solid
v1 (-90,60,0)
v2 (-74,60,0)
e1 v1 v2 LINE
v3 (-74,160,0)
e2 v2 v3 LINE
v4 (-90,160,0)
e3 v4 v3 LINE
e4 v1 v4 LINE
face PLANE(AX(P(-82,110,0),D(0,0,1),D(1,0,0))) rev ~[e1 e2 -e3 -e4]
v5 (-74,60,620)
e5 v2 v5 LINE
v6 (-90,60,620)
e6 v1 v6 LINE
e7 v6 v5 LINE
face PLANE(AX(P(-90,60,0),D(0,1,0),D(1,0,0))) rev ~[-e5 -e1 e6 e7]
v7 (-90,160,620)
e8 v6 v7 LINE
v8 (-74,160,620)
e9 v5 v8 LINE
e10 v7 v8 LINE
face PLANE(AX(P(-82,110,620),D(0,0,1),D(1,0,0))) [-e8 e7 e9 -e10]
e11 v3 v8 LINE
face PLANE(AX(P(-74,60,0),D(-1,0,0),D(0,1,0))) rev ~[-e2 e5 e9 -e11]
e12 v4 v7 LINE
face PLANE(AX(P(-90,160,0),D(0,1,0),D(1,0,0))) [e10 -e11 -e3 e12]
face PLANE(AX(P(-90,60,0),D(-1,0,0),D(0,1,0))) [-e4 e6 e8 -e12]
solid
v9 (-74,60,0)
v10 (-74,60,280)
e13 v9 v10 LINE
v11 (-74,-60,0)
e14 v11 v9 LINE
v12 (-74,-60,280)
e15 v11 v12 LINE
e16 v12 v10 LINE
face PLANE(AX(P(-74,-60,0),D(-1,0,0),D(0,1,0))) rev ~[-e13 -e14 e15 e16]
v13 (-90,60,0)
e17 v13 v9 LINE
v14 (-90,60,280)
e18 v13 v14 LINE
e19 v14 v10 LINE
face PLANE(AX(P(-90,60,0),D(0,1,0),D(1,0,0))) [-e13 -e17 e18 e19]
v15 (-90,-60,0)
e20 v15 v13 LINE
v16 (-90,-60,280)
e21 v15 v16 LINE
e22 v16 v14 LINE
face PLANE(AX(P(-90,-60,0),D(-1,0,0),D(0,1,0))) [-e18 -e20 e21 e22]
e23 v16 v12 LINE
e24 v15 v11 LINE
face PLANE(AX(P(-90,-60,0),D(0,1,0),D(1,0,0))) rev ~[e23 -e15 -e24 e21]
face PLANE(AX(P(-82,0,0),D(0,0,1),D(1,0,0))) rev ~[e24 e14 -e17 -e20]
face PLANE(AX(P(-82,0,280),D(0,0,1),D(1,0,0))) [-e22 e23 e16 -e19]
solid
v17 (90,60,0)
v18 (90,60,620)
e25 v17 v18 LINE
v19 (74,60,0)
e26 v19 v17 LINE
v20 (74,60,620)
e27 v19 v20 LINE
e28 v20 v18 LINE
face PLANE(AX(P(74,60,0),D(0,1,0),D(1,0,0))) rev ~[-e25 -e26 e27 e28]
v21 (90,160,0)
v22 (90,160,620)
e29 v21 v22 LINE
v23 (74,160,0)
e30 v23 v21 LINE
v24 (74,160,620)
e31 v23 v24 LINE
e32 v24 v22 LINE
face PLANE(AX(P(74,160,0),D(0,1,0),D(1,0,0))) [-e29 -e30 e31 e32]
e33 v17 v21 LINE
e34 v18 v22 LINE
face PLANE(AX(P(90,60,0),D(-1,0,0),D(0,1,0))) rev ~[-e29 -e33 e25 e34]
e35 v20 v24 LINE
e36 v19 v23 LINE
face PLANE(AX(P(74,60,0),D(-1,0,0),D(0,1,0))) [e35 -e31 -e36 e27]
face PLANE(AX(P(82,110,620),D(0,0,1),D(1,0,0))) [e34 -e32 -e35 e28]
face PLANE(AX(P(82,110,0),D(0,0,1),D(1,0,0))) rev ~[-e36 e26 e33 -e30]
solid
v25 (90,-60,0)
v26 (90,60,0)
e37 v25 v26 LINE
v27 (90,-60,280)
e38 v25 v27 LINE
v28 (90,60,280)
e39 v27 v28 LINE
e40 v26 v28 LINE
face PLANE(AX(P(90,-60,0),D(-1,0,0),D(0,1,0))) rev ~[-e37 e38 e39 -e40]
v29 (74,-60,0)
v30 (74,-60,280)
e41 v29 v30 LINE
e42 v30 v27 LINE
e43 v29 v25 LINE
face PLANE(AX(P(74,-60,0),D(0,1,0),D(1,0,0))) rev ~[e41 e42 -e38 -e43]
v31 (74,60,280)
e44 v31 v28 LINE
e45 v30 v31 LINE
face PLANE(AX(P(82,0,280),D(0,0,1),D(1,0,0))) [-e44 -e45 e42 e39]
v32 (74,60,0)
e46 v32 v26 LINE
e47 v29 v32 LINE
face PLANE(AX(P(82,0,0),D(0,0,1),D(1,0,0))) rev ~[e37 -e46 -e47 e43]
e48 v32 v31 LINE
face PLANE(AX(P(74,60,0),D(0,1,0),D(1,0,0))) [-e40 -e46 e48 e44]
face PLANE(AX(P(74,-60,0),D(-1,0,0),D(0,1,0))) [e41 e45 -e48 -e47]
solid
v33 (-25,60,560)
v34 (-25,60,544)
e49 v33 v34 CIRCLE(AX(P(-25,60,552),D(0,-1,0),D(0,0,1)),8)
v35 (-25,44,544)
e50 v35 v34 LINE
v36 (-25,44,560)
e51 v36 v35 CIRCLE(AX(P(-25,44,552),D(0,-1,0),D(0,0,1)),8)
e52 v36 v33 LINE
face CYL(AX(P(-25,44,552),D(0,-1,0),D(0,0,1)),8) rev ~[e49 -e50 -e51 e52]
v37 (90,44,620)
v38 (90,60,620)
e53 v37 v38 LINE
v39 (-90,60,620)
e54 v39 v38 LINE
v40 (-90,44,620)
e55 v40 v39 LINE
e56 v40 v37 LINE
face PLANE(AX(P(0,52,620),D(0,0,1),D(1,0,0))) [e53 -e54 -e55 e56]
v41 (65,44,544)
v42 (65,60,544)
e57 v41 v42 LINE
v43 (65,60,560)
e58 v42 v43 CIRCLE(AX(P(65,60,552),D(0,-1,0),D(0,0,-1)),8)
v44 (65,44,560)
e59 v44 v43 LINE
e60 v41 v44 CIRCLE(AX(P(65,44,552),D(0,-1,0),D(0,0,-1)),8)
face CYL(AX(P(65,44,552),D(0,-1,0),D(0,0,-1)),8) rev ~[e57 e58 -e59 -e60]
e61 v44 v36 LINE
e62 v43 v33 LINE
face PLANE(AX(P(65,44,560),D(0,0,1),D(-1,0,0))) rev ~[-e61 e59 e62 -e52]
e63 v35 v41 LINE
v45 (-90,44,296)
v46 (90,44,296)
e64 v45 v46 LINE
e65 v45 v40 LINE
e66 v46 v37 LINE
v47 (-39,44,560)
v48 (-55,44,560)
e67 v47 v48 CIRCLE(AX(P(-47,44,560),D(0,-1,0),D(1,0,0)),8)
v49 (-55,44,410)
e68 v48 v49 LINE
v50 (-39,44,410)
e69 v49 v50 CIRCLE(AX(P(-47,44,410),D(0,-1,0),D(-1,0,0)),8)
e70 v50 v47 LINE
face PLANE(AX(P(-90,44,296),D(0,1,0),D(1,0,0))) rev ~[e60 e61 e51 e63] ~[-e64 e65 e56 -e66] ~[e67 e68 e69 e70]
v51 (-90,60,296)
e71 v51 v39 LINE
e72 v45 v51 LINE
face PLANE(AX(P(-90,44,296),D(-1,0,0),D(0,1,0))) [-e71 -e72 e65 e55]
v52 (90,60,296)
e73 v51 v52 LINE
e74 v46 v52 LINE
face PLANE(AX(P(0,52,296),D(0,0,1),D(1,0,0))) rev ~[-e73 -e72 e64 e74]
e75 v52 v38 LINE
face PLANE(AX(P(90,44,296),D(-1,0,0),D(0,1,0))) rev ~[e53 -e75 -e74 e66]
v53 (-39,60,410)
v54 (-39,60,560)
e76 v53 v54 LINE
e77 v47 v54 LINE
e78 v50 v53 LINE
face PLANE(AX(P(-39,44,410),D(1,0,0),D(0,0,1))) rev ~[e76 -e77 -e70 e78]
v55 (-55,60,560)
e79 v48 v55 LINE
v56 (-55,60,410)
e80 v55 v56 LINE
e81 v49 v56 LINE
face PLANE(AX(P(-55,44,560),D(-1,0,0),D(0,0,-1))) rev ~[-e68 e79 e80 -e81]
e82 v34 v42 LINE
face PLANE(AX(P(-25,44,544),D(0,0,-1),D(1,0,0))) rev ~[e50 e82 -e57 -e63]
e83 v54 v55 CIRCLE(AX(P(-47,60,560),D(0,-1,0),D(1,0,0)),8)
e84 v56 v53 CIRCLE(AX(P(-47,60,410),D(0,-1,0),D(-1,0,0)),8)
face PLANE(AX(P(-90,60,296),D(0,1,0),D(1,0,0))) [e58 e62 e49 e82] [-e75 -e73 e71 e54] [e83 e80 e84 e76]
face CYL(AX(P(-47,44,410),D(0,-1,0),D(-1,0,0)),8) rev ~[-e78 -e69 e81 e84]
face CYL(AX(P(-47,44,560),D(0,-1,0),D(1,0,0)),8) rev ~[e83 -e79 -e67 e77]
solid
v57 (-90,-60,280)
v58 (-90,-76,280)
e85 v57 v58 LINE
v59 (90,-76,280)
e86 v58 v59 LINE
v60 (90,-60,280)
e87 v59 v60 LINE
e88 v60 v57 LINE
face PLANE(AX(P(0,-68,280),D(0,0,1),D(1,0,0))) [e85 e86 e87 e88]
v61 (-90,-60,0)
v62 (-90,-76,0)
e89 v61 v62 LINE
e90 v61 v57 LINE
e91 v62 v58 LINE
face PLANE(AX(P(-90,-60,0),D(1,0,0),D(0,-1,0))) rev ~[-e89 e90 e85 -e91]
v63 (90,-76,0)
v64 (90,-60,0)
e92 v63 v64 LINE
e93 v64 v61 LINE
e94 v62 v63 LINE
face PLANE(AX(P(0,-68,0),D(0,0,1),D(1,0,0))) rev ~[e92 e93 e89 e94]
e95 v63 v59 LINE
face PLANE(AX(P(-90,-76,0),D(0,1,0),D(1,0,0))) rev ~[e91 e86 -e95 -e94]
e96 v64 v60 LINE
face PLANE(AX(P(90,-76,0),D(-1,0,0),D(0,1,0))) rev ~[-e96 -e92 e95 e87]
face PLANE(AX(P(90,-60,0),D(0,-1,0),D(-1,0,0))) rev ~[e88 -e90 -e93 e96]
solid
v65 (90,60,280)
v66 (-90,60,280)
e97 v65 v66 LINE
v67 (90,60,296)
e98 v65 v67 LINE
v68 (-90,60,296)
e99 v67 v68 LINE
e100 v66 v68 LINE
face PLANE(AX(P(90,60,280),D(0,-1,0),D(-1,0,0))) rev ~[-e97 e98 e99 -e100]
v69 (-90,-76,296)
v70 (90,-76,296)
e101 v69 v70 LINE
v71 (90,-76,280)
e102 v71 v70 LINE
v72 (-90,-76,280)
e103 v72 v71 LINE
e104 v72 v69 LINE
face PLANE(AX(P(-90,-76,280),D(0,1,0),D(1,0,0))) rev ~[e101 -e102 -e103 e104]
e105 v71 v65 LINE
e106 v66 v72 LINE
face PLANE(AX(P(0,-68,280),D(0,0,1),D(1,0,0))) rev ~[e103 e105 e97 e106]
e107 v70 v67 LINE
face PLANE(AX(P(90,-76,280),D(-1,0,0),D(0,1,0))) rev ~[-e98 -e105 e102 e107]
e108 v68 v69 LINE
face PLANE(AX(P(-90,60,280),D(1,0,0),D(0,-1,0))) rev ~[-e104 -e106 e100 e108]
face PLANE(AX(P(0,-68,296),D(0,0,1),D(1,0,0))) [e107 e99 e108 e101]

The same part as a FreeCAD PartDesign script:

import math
import FreeCAD as App
import Part
import Sketcher
Q = App.Units.Quantity

doc = App.newDocument("Part")
params = doc.addObject("Spreadsheet::Sheet", "Params")
for row, (alias, value) in enumerate([
    ("sketch1_width", "16 mm"),
    ("sketch1_height", "120 mm"),
    ("pad1_length", "280 mm"),
    ("sketch2_width", "16 mm"),
    ("sketch2_height", "100 mm"),
    ("pad2_length", "620 mm"),
    ("sketch3_width", "180 mm"),
    ("sketch3_height", "16 mm"),
    ("pad3_length", "280 mm"),
    ("sketch4_width", "180 mm"),
    ("sketch4_height", "136 mm"),
    ("pad4_length", "16 mm"),
    ("sketch5_width", "180 mm"),
    ("sketch5_height", "16 mm"),
    ("pad5_length", "324 mm"),
    ("sketch6_radius", "8 mm"),
    ("sketch6_width", "90 mm"),
    ("sketch6_height", "150 mm"),
], start=1):
    params.set(f"A{row}", alias)
    params.set(f"B{row}", "=" + value)
    params.setAlias(f"B{row}", alias)

body = doc.addObject("PartDesign::Body", "Body")
body.AllowCompound = True

# Sketch on XY plane
sketch1 = body.newObject("Sketcher::SketchObject", "Sketch")
sketch1.AttachmentSupport = (doc.getObject("XY_Plane"), [""])
sketch1.MapMode = "FlatFace"
sketch1.addGeometry([
    Part.LineSegment(App.Vector(-90, 60, 0), App.Vector(-90, -60, 0)),  # 0
    Part.LineSegment(App.Vector(-90, -60, 0), App.Vector(-74, -60, 0)),  # 1
    Part.LineSegment(App.Vector(-74, -60, 0), App.Vector(-74, 60, 0)),  # 2
    Part.LineSegment(App.Vector(-74, 60, 0), App.Vector(-90, 60, 0)),  # 3
    Part.LineSegment(App.Vector(74, 60, 0), App.Vector(74, -60, 0)),  # 4
    Part.LineSegment(App.Vector(74, -60, 0), App.Vector(90, -60, 0)),  # 5
    Part.LineSegment(App.Vector(90, -60, 0), App.Vector(90, 60, 0)),  # 6
    Part.LineSegment(App.Vector(90, 60, 0), App.Vector(74, 60, 0)),  # 7
], False)
sketch1.addConstraint([
    Sketcher.Constraint("Coincident", 0, 2, 1, 1),
    Sketcher.Constraint("Coincident", 1, 2, 2, 1),
    Sketcher.Constraint("Coincident", 2, 2, 3, 1),
    Sketcher.Constraint("Coincident", 3, 2, 0, 1),
    Sketcher.Constraint("Coincident", 4, 2, 5, 1),
    Sketcher.Constraint("Coincident", 5, 2, 6, 1),
    Sketcher.Constraint("Coincident", 6, 2, 7, 1),
    Sketcher.Constraint("Coincident", 7, 2, 4, 1),
    Sketcher.Constraint("Vertical", 0),
    Sketcher.Constraint("Horizontal", 1),
    Sketcher.Constraint("Vertical", 2),
    Sketcher.Constraint("Horizontal", 3),
    Sketcher.Constraint("Vertical", 4),
    Sketcher.Constraint("Horizontal", 5),
    Sketcher.Constraint("Vertical", 6),
    Sketcher.Constraint("Horizontal", 7),
    Sketcher.Constraint("Symmetric", 2, 2, 4, 2, -1, 1),
    Sketcher.Constraint("Symmetric", 0, 2, 6, 2, -1, 1),
    Sketcher.Constraint("Horizontal", 1, 2, 4, 2),
    Sketcher.Constraint("DistanceX", 1, 1, 1, 2, Q("16 mm")),
    Sketcher.Constraint("DistanceY", 0, 2, 0, 1, Q("120 mm")),
    Sketcher.Constraint("DistanceX", 0, 2, -1, 1, Q("90 mm")),
])
sketch1.setExpression("Constraints[19]", "Params.sketch1_width")
sketch1.setExpression("Constraints[20]", "Params.sketch1_height")
pad1 = body.newObject("PartDesign::Pad", "Pad")
pad1.Profile = sketch1
pad1.setExpression("Length", "Params.pad1_length")
body2 = doc.addObject("PartDesign::Body", "Body001")
body2.AllowCompound = True

# Sketch on XY plane
sketch2 = body2.newObject("Sketcher::SketchObject", "Sketch001")
sketch2.AttachmentSupport = (doc.getObject("XY_Plane001"), [""])
sketch2.MapMode = "FlatFace"
sketch2.addGeometry([
    Part.LineSegment(App.Vector(-90, 160, 0), App.Vector(-90, 60, 0)),  # 0
    Part.LineSegment(App.Vector(-90, 60, 0), App.Vector(-74, 60, 0)),  # 1
    Part.LineSegment(App.Vector(-74, 60, 0), App.Vector(-74, 160, 0)),  # 2
    Part.LineSegment(App.Vector(-74, 160, 0), App.Vector(-90, 160, 0)),  # 3
    Part.LineSegment(App.Vector(74, 160, 0), App.Vector(74, 60, 0)),  # 4
    Part.LineSegment(App.Vector(74, 60, 0), App.Vector(90, 60, 0)),  # 5
    Part.LineSegment(App.Vector(90, 60, 0), App.Vector(90, 160, 0)),  # 6
    Part.LineSegment(App.Vector(90, 160, 0), App.Vector(74, 160, 0)),  # 7
], False)
sketch2.addConstraint([
    Sketcher.Constraint("Coincident", 0, 2, 1, 1),
    Sketcher.Constraint("Coincident", 1, 2, 2, 1),
    Sketcher.Constraint("Coincident", 2, 2, 3, 1),
    Sketcher.Constraint("Coincident", 3, 2, 0, 1),
    Sketcher.Constraint("Coincident", 4, 2, 5, 1),
    Sketcher.Constraint("Coincident", 5, 2, 6, 1),
    Sketcher.Constraint("Coincident", 6, 2, 7, 1),
    Sketcher.Constraint("Coincident", 7, 2, 4, 1),
    Sketcher.Constraint("Vertical", 0),
    Sketcher.Constraint("Horizontal", 1),
    Sketcher.Constraint("Vertical", 2),
    Sketcher.Constraint("Horizontal", 3),
    Sketcher.Constraint("Vertical", 4),
    Sketcher.Constraint("Horizontal", 5),
    Sketcher.Constraint("Vertical", 6),
    Sketcher.Constraint("Horizontal", 7),
    Sketcher.Constraint("Symmetric", 1, 2, 4, 2, -2),
    Sketcher.Constraint("Symmetric", 3, 2, 6, 2, -2),
    Sketcher.Constraint("DistanceX", 1, 1, 1, 2, Q("16 mm")),
    Sketcher.Constraint("DistanceY", 0, 2, 0, 1, Q("100 mm")),
    Sketcher.Constraint("DistanceX", 0, 2, -1, 1, Q("90 mm")),
    Sketcher.Constraint("DistanceY", -1, 1, 0, 2, Q("60 mm")),
])
sketch2.setExpression("Constraints[18]", "Params.sketch2_width")
sketch2.setExpression("Constraints[19]", "Params.sketch2_height")
pad2 = body2.newObject("PartDesign::Pad", "Pad001")
pad2.Profile = sketch2
pad2.setExpression("Length", "Params.pad2_length")
body3 = doc.addObject("PartDesign::Body", "Body002")

# Sketch on XY plane
sketch3 = body3.newObject("Sketcher::SketchObject", "Sketch002")
sketch3.AttachmentSupport = (doc.getObject("XY_Plane002"), [""])
sketch3.MapMode = "FlatFace"
sketch3.addGeometry([
    Part.LineSegment(App.Vector(-90, -60, 0), App.Vector(-90, -76, 0)),
    Part.LineSegment(App.Vector(-90, -76, 0), App.Vector(90, -76, 0)),
    Part.LineSegment(App.Vector(90, -76, 0), App.Vector(90, -60, 0)),
    Part.LineSegment(App.Vector(90, -60, 0), App.Vector(-90, -60, 0)),
], False)
sketch3.addConstraint([
    Sketcher.Constraint("Coincident", 0, 2, 1, 1),
    Sketcher.Constraint("Coincident", 1, 2, 2, 1),
    Sketcher.Constraint("Coincident", 2, 2, 3, 1),
    Sketcher.Constraint("Coincident", 3, 2, 0, 1),
    Sketcher.Constraint("Vertical", 0),
    Sketcher.Constraint("Horizontal", 1),
    Sketcher.Constraint("Vertical", 2),
    Sketcher.Constraint("Horizontal", 3),
    Sketcher.Constraint("DistanceX", 1, 1, 1, 2, Q("180 mm")),
    Sketcher.Constraint("DistanceY", 0, 2, 0, 1, Q("16 mm")),
    Sketcher.Constraint("DistanceX", 0, 2, -1, 1, Q("90 mm")),
    Sketcher.Constraint("DistanceY", 0, 2, -1, 1, Q("76 mm")),
])
sketch3.setExpression("Constraints[8]", "Params.sketch3_width")
sketch3.setExpression("Constraints[9]", "Params.sketch3_height")
pad3 = body3.newObject("PartDesign::Pad", "Pad002")
pad3.Profile = sketch3
pad3.setExpression("Length", "Params.pad3_length")
body4 = doc.addObject("PartDesign::Body", "Body003")

# Sketch on XY plane
sketch4 = body4.newObject("Sketcher::SketchObject", "Sketch003")
sketch4.AttachmentSupport = (doc.getObject("XY_Plane003"), [""])
sketch4.MapMode = "FlatFace"
sketch4.AttachmentOffset = App.Placement(App.Vector(0, 0, 280), App.Rotation())
sketch4.addGeometry([
    Part.LineSegment(App.Vector(-90, -76, 0), App.Vector(90, -76, 0)),
    Part.LineSegment(App.Vector(90, -76, 0), App.Vector(90, 60, 0)),
    Part.LineSegment(App.Vector(90, 60, 0), App.Vector(-90, 60, 0)),
    Part.LineSegment(App.Vector(-90, 60, 0), App.Vector(-90, -76, 0)),
], False)
sketch4.addConstraint([
    Sketcher.Constraint("Coincident", 0, 2, 1, 1),
    Sketcher.Constraint("Coincident", 1, 2, 2, 1),
    Sketcher.Constraint("Coincident", 2, 2, 3, 1),
    Sketcher.Constraint("Coincident", 3, 2, 0, 1),
    Sketcher.Constraint("Horizontal", 0),
    Sketcher.Constraint("Vertical", 1),
    Sketcher.Constraint("Horizontal", 2),
    Sketcher.Constraint("Vertical", 3),
    Sketcher.Constraint("DistanceX", 0, 1, 0, 2, Q("180 mm")),
    Sketcher.Constraint("DistanceY", 1, 1, 1, 2, Q("136 mm")),
    Sketcher.Constraint("DistanceX", -1, 1, 0, 2, Q("90 mm")),
    Sketcher.Constraint("DistanceY", 0, 2, -1, 1, Q("76 mm")),
])
sketch4.setExpression("Constraints[8]", "Params.sketch4_width")
sketch4.setExpression("Constraints[9]", "Params.sketch4_height")
pad4 = body4.newObject("PartDesign::Pad", "Pad003")
pad4.Profile = sketch4
pad4.setExpression("Length", "Params.pad4_length")
body5 = doc.addObject("PartDesign::Body", "Body004")

# Sketch on XY plane
sketch5 = body5.newObject("Sketcher::SketchObject", "Sketch004")
sketch5.AttachmentSupport = (doc.getObject("XY_Plane004"), [""])
sketch5.MapMode = "FlatFace"
sketch5.AttachmentOffset = App.Placement(App.Vector(0, 0, 296), App.Rotation())
sketch5.addGeometry([
    Part.LineSegment(App.Vector(-90, 60, 0), App.Vector(-90, 44, 0)),
    Part.LineSegment(App.Vector(-90, 44, 0), App.Vector(90, 44, 0)),
    Part.LineSegment(App.Vector(90, 44, 0), App.Vector(90, 60, 0)),
    Part.LineSegment(App.Vector(90, 60, 0), App.Vector(-90, 60, 0)),
], False)
sketch5.addConstraint([
    Sketcher.Constraint("Coincident", 0, 2, 1, 1),
    Sketcher.Constraint("Coincident", 1, 2, 2, 1),
    Sketcher.Constraint("Coincident", 2, 2, 3, 1),
    Sketcher.Constraint("Coincident", 3, 2, 0, 1),
    Sketcher.Constraint("Vertical", 0),
    Sketcher.Constraint("Horizontal", 1),
    Sketcher.Constraint("Vertical", 2),
    Sketcher.Constraint("Horizontal", 3),
    Sketcher.Constraint("DistanceX", 1, 1, 1, 2, Q("180 mm")),
    Sketcher.Constraint("DistanceY", 0, 2, 0, 1, Q("16 mm")),
    Sketcher.Constraint("DistanceX", 0, 2, -1, 1, Q("90 mm")),
    Sketcher.Constraint("DistanceY", -1, 1, 0, 2, Q("44 mm")),
])
sketch5.setExpression("Constraints[8]", "Params.sketch5_width")
sketch5.setExpression("Constraints[9]", "Params.sketch5_height")
pad5 = body5.newObject("PartDesign::Pad", "Pad004")
pad5.Profile = sketch5
pad5.setExpression("Length", "Params.pad5_length")

# Sketch on XZ plane
sketch6 = body5.newObject("Sketcher::SketchObject", "Sketch005")
sketch6.AttachmentSupport = (doc.getObject("XZ_Plane004"), [""])
sketch6.MapMode = "FlatFace"
sketch6.AttachmentOffset = App.Placement(App.Vector(0, 0, -44), App.Rotation())
sketch6.addGeometry([
    Part.LineSegment(App.Vector(65, 560, 0), App.Vector(-25, 560, 0)),  # 0
    Part.ArcOfCircle(Part.Circle(App.Vector(-25, 552, 0), App.Vector(0, 0, 1), 8), math.radians(90), math.radians(270)),  # 1
    Part.LineSegment(App.Vector(-25, 544, 0), App.Vector(65, 544, 0)),  # 2
    Part.ArcOfCircle(Part.Circle(App.Vector(65, 552, 0), App.Vector(0, 0, 1), 8), math.radians(-90), math.radians(90)),  # 3
    Part.ArcOfCircle(Part.Circle(App.Vector(-47, 560, 0), App.Vector(0, 0, 1), 8), math.radians(0), math.radians(180)),  # 4
    Part.LineSegment(App.Vector(-55, 560, 0), App.Vector(-55, 410, 0)),  # 5
    Part.ArcOfCircle(Part.Circle(App.Vector(-47, 410, 0), App.Vector(0, 0, 1), 8), math.radians(180), math.radians(360)),  # 6
    Part.LineSegment(App.Vector(-39, 410, 0), App.Vector(-39, 560, 0)),  # 7
], False)
sketch6.addConstraint([
    Sketcher.Constraint("Tangent", 0, 2, 1, 1),
    Sketcher.Constraint("Tangent", 1, 2, 2, 1),
    Sketcher.Constraint("Tangent", 2, 2, 3, 1),
    Sketcher.Constraint("Tangent", 3, 2, 0, 1),
    Sketcher.Constraint("Tangent", 4, 2, 5, 1),
    Sketcher.Constraint("Tangent", 5, 2, 6, 1),
    Sketcher.Constraint("Tangent", 6, 2, 7, 1),
    Sketcher.Constraint("Tangent", 7, 2, 4, 1),
    Sketcher.Constraint("Horizontal", 0),
    Sketcher.Constraint("Horizontal", 2),
    Sketcher.Constraint("Vertical", 5),
    Sketcher.Constraint("Vertical", 7),
    Sketcher.Constraint("Equal", 3, 4),
    Sketcher.Constraint("Horizontal", 4, 3, 0, 2),
    Sketcher.Constraint("Radius", 1, Q("8 mm")),
    Sketcher.Constraint("DistanceX", 0, 2, 0, 1, Q("90 mm")),
    Sketcher.Constraint("DistanceY", 5, 2, 5, 1, Q("150 mm")),
    Sketcher.Constraint("DistanceX", 1, 3, -1, 1, Q("25 mm")),
    Sketcher.Constraint("DistanceY", -1, 1, 1, 3, Q("552 mm")),
    Sketcher.Constraint("DistanceX", 4, 3, -1, 1, Q("47 mm")),
])
sketch6.setExpression("Constraints[14]", "Params.sketch6_radius")
sketch6.setExpression("Constraints[15]", "Params.sketch6_width")
sketch6.setExpression("Constraints[16]", "Params.sketch6_height")
pocket1 = body5.newObject("PartDesign::Pocket", "Pocket")
pocket1.Profile = sketch6
pocket1.Type = "ThroughAll"

doc.recompute()
